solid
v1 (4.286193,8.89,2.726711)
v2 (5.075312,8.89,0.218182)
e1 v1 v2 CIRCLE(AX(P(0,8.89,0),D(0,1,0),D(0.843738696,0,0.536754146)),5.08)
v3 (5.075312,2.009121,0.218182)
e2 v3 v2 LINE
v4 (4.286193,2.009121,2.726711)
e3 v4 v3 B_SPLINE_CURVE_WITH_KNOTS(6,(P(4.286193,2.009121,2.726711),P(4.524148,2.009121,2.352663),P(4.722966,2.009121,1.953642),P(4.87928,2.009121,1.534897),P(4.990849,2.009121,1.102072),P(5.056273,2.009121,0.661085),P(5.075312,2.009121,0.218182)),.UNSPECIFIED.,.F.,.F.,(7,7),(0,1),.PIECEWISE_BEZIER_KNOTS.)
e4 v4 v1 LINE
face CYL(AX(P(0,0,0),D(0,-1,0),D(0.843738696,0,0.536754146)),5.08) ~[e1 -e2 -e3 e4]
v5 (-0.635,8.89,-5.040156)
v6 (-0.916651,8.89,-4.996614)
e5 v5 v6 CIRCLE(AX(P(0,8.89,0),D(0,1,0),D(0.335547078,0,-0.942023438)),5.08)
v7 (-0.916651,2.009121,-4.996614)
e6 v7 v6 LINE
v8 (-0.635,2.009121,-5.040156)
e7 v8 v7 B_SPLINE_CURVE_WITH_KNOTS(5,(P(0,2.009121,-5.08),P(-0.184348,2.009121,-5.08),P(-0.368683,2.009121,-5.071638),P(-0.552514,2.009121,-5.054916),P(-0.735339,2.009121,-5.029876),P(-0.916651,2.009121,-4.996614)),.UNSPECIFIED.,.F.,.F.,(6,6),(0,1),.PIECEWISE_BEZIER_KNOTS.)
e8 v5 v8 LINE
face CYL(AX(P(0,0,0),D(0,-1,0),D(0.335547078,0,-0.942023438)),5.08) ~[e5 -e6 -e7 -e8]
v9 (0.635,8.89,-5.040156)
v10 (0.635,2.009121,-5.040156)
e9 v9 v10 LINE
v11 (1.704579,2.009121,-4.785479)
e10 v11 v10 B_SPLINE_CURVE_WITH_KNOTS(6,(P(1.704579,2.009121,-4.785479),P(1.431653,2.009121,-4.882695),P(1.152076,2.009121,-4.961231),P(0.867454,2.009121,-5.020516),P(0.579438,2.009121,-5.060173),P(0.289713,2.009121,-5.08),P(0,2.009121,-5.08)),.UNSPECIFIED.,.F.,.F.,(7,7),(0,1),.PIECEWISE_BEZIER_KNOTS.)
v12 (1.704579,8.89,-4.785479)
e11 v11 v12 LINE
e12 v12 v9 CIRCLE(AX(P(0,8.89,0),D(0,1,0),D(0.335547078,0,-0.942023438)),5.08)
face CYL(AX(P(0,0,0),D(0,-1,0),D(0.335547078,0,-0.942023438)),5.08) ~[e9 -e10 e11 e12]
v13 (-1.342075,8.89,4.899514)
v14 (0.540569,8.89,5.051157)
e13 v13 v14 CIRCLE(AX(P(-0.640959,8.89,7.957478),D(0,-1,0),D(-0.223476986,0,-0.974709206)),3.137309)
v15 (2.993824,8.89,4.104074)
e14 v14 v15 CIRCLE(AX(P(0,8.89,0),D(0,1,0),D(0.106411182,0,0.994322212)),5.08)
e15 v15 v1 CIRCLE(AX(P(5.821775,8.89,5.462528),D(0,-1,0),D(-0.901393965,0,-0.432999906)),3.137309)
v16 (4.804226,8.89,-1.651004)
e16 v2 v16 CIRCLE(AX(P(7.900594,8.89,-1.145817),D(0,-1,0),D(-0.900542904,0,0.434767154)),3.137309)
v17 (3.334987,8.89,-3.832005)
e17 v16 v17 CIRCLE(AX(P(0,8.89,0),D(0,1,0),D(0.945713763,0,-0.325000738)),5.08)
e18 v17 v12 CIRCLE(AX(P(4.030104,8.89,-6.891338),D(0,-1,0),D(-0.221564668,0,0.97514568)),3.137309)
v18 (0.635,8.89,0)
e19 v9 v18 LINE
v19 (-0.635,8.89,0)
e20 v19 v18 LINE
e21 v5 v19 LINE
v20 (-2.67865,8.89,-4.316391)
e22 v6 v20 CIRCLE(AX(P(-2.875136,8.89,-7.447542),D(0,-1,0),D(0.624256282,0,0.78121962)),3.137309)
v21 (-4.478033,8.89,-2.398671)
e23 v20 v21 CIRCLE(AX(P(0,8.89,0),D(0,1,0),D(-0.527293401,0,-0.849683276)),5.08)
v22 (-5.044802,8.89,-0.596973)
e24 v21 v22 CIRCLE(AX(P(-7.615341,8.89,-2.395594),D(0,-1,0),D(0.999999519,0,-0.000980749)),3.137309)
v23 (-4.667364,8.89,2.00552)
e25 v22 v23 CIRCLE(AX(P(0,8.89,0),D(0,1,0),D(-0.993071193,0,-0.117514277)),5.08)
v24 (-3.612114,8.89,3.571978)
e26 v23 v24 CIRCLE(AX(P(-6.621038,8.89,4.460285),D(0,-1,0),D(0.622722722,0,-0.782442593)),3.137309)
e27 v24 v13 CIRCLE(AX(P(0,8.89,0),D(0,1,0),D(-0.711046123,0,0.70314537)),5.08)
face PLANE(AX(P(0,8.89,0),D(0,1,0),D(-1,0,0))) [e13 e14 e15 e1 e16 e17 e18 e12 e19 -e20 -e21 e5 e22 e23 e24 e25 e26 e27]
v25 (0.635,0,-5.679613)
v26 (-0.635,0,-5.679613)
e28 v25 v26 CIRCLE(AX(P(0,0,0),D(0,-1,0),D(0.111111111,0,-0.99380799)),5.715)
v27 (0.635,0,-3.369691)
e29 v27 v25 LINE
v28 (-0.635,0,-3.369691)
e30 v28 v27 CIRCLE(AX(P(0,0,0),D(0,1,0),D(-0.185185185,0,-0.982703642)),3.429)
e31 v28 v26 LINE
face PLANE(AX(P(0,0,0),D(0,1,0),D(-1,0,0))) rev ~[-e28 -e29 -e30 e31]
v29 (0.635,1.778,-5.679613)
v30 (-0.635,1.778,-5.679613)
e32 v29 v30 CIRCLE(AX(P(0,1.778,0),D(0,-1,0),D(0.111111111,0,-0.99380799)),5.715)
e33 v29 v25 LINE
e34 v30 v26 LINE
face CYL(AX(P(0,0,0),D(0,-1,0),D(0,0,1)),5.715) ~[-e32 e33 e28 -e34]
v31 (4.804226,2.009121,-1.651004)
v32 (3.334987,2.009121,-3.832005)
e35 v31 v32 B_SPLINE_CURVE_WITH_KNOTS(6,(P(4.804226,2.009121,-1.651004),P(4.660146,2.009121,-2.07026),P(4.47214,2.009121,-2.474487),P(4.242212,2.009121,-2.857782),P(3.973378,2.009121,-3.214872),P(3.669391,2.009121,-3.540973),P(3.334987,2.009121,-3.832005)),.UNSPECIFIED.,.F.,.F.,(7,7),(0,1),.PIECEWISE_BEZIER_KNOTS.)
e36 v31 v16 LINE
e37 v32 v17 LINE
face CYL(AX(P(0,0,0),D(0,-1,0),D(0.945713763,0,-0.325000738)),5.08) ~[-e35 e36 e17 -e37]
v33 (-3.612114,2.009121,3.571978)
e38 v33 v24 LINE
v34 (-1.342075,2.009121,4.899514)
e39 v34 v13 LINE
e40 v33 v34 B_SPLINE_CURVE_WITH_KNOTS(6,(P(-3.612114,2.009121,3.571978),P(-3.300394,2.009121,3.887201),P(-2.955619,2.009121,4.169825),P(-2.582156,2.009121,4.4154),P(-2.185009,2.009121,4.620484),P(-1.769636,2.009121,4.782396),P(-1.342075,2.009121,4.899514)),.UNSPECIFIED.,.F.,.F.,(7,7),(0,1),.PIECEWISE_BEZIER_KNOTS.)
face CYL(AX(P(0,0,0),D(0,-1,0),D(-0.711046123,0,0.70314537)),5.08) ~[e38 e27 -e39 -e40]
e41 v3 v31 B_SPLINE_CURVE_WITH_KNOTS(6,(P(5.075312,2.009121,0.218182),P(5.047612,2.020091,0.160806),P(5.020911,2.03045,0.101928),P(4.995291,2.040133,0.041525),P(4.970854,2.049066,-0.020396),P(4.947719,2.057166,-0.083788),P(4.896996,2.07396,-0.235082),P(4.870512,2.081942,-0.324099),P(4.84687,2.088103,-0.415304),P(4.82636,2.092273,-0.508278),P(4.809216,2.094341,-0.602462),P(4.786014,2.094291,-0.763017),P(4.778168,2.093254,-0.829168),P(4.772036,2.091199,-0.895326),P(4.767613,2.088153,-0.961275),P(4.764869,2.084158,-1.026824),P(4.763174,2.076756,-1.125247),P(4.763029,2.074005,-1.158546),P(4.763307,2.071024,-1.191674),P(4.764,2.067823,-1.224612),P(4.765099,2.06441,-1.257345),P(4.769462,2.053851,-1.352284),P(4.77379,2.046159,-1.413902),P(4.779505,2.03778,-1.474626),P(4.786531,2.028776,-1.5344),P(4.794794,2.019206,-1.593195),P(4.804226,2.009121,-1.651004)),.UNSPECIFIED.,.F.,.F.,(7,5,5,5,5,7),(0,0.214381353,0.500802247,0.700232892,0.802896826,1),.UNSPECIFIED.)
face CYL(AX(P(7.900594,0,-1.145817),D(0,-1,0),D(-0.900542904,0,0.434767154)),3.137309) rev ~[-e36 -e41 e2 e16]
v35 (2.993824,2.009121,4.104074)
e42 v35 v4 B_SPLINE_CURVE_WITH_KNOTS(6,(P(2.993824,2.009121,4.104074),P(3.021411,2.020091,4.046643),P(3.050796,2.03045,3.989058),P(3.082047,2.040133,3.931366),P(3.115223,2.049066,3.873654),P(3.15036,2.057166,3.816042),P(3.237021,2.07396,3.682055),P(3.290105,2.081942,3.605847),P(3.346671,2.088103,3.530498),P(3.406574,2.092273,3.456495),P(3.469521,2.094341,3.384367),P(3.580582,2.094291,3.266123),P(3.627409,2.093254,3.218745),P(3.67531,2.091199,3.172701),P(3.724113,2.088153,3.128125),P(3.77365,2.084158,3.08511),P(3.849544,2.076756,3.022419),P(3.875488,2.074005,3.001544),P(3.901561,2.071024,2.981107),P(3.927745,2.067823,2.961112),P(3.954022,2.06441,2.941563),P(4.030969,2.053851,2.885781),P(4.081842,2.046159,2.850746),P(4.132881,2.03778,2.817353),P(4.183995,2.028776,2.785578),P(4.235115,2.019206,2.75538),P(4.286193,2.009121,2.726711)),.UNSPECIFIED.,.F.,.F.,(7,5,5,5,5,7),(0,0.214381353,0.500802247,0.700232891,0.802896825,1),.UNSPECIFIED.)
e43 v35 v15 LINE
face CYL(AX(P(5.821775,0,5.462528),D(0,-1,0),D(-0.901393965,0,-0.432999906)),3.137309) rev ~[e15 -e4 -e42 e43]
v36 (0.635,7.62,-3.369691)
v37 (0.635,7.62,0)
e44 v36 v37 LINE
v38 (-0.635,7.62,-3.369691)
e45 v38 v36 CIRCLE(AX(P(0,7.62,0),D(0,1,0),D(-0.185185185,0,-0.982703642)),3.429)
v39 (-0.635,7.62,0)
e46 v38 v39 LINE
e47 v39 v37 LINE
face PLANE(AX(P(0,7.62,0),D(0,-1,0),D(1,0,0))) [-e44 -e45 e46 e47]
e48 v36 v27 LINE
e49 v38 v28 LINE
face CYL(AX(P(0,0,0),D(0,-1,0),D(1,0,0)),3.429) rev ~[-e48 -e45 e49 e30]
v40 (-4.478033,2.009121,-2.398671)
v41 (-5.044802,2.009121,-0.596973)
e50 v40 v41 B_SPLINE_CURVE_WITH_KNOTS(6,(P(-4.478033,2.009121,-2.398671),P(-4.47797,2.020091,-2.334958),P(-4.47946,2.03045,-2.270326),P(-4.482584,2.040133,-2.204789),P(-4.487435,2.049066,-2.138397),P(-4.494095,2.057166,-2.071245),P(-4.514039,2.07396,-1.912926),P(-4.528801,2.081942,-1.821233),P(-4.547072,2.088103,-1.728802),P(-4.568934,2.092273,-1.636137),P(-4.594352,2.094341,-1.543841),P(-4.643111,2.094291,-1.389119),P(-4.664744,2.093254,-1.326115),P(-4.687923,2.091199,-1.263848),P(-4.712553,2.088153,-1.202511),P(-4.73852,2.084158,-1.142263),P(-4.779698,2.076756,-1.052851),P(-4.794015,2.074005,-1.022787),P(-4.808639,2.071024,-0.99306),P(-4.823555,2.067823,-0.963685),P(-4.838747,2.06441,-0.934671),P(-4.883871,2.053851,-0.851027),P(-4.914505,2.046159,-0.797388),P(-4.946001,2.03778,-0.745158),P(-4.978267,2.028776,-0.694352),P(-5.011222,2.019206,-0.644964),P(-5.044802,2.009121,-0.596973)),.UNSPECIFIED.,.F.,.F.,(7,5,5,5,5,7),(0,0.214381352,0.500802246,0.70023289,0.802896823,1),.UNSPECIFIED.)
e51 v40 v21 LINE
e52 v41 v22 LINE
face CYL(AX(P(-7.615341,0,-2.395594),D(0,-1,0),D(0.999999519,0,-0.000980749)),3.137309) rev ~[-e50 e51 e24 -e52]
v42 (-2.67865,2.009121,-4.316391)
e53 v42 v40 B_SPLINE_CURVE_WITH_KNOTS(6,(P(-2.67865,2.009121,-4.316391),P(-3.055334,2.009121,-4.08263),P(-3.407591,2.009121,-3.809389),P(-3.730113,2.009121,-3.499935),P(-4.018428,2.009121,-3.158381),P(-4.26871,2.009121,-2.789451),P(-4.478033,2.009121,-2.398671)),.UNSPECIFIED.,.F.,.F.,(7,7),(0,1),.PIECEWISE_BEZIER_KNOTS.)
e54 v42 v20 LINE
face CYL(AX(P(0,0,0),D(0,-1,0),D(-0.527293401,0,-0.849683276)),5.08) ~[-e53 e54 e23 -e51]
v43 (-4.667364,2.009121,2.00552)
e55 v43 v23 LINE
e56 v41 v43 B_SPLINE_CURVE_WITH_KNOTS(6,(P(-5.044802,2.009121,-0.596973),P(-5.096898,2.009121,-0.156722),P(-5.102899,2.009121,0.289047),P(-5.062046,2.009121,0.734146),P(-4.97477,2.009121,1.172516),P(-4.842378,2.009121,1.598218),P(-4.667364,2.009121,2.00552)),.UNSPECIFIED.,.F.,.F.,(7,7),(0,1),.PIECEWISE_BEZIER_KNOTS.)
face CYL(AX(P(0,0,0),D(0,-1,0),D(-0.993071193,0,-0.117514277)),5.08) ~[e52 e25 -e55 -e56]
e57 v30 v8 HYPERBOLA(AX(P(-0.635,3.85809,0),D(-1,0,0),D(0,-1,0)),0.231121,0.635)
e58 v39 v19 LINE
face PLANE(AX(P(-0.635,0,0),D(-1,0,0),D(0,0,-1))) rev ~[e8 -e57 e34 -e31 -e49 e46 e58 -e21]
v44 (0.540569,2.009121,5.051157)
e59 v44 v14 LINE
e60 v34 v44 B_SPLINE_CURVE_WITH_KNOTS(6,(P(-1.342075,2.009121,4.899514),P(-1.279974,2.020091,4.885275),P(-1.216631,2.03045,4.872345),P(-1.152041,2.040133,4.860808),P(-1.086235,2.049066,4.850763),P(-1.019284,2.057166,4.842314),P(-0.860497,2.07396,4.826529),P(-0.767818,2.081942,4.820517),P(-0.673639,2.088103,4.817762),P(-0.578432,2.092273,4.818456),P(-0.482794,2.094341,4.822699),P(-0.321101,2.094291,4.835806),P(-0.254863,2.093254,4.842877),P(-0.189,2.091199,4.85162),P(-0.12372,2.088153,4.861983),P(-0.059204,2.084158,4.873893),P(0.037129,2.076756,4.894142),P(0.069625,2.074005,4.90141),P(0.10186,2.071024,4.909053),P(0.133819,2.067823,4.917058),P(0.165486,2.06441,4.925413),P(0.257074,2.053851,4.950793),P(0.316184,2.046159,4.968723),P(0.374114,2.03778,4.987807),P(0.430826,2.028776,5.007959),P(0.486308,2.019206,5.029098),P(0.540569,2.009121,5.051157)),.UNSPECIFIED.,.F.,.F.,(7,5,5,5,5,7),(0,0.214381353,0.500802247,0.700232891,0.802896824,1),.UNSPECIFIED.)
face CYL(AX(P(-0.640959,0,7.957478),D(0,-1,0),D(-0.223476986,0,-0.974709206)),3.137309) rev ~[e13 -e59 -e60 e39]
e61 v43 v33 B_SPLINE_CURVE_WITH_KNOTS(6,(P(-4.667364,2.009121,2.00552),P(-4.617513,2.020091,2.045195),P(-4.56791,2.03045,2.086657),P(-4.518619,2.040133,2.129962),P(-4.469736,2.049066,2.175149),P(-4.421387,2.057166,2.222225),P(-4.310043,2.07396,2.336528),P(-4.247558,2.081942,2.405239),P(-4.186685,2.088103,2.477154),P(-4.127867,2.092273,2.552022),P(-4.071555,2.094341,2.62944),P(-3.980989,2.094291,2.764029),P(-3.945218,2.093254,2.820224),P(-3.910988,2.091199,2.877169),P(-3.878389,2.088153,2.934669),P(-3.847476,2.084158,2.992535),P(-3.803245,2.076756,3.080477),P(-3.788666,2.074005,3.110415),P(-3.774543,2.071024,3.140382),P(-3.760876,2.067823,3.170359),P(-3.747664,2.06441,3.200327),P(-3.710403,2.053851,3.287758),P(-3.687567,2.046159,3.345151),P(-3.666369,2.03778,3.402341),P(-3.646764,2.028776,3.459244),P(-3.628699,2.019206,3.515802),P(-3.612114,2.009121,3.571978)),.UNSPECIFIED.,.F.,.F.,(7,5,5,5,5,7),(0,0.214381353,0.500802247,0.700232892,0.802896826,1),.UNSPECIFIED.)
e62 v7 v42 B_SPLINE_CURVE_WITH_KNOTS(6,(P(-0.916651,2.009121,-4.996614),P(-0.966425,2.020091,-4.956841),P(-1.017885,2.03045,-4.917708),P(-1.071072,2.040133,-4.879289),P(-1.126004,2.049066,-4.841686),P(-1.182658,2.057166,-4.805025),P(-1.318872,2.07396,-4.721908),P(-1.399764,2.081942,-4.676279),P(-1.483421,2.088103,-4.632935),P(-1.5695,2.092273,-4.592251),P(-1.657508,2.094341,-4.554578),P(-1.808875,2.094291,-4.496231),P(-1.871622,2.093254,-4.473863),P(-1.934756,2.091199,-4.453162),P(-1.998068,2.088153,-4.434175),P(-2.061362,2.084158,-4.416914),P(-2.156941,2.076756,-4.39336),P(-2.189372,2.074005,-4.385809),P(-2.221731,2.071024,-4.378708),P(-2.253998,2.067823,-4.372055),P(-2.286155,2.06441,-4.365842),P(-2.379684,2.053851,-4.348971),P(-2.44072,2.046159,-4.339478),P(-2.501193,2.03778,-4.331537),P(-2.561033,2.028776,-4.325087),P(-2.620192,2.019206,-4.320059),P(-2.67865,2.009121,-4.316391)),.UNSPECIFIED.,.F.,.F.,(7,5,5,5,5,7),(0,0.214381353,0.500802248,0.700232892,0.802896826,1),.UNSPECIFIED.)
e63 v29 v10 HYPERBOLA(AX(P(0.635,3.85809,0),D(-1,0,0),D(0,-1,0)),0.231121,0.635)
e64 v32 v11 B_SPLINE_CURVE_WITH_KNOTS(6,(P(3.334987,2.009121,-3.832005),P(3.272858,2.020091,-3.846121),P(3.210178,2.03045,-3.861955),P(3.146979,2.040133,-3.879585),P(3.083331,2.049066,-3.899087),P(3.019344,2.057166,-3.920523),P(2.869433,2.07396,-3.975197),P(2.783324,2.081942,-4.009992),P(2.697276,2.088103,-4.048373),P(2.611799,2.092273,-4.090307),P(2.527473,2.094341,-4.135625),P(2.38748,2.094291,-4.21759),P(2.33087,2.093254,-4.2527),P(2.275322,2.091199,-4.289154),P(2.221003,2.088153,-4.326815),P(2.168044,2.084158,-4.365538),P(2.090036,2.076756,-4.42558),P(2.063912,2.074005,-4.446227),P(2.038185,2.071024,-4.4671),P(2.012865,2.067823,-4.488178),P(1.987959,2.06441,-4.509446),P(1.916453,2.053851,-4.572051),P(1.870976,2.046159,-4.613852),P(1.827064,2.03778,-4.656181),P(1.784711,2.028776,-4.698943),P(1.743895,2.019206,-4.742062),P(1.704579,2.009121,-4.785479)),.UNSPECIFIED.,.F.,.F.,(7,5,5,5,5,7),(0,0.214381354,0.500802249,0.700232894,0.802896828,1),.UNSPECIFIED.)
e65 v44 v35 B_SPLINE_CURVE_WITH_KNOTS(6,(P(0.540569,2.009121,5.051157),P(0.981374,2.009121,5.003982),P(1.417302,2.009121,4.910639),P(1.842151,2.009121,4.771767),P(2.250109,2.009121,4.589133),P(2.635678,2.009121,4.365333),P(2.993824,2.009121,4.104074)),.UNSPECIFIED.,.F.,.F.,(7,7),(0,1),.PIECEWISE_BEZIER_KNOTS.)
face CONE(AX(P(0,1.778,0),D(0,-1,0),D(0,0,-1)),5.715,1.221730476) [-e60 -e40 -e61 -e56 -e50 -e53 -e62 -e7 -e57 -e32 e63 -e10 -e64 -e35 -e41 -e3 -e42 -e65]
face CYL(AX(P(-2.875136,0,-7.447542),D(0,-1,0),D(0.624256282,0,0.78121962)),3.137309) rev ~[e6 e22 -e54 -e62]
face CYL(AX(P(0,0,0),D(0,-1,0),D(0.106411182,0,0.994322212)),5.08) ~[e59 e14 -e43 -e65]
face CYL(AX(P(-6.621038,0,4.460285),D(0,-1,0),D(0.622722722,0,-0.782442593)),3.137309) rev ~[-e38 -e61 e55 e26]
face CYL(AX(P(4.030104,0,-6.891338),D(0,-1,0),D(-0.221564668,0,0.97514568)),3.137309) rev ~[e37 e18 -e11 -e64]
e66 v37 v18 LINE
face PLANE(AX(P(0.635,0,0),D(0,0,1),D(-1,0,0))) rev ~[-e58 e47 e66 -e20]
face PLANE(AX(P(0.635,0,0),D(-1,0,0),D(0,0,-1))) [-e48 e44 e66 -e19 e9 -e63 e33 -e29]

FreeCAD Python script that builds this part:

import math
import FreeCAD as App
import Part
import Sketcher

V = App.Vector
Q = App.Units.Quantity

doc = App.newDocument("Part")
body = doc.addObject("PartDesign::Body", "Body")

sketch1 = doc.addObject("Sketcher::SketchObject", "Sketch")
body.addObject(sketch1)
sketch1.AttachmentSupport = (doc.XZ_Plane, [""])
sketch1.MapMode = "FlatFace"
sketch1.addGeometry(Part.Circle(V(0, 0, 0), V(0, 0, 1), 6), False)
sketch1.addConstraint([
    Sketcher.Constraint("Coincident", 0, 3, -1, 1),
    Sketcher.Constraint("Diameter", 0, Q("0.45 in")),
])
pad1 = doc.addObject("PartDesign::Pad", "Pad")
body.addObject(pad1)
pad1.Profile = sketch1
pad1.Length = Q("0.07 in")
pad1.Reversed = True

sketch2 = doc.addObject("Sketcher::SketchObject", "Sketch001")
body.addObject(sketch2)
sketch2.AttachmentSupport = (doc.YZ_Plane, [""])
sketch2.MapMode = "FlatFace"
sketch2.addGeometry([
    Part.LineSegment(V(1.8, 0, 0), V(1.8, -5.7, 0)),
    Part.LineSegment(V(1.8, -5.7, 0), V(3.9, 0, 0)),
    Part.LineSegment(V(3.9, 0, 0), V(1.8, 0, 0)),
], False)
sketch2.addConstraint([
    Sketcher.Constraint("Coincident", 0, 2, 1, 1),
    Sketcher.Constraint("Coincident", 1, 2, 2, 1),
    Sketcher.Constraint("Coincident", 2, 2, 0, 1),
    Sketcher.Constraint("Vertical", 0),
    Sketcher.Constraint("Horizontal", 2),
    Sketcher.Constraint("PointOnObject", 1, 2, -1),
    Sketcher.Constraint("Angle", 1, Q("70 deg")),
    Sketcher.Constraint("DistanceY", 0, 2, 0, 1, Q("0.225 in")),
    Sketcher.Constraint("DistanceX", -1, 1, 0, 2, Q("0.07 in")),
])
revolution = doc.addObject("PartDesign::Revolution", "Revolution")
body.addObject(revolution)
revolution.Profile = sketch2
revolution.ReferenceAxis = (sketch2, ["H_Axis"])
revolution.Angle = 360

sketch3 = doc.addObject("Sketcher::SketchObject", "Sketch002")
body.addObject(sketch3)
sketch3.AttachmentSupport = (doc.XZ_Plane, [""])
sketch3.MapMode = "FlatFace"
sketch3.addGeometry([
    Part.ArcOfCircle(Part.Circle(V(4, -6.9, 0), V(0, 0, 1), 3.1), math.radians(103), math.radians(138)),
    Part.ArcOfCircle(Part.Circle(V(0, 0, 0), V(0, 0, 1), 5.1), math.radians(-49), math.radians(-19)),
    Part.ArcOfCircle(Part.Circle(V(7.9, -1.1, 0), V(0, 0, 1), 3.1), math.radians(154), math.radians(189)),
    Part.ArcOfCircle(Part.Circle(V(0, 0, 0), V(0, 0, 1), 5.1), math.radians(2), math.radians(32)),
    Part.ArcOfCircle(Part.Circle(V(5.8, 5.5, 0), V(0, 0, 1), 3.1), math.radians(-154), math.radians(-119)),
    Part.ArcOfCircle(Part.Circle(V(0, 0, 0), V(0, 0, 1), 5.1), math.radians(54), math.radians(84)),
    Part.ArcOfCircle(Part.Circle(V(-0.6, 8, 0), V(0, 0, 1), 3.1), math.radians(-103), math.radians(-68)),
    Part.ArcOfCircle(Part.Circle(V(0, 0, 0), V(0, 0, 1), 5.1), math.radians(105), math.radians(135)),
    Part.ArcOfCircle(Part.Circle(V(-6.6, 4.5, 0), V(0, 0, 1), 3.1), math.radians(-51), math.radians(-16)),
    Part.ArcOfCircle(Part.Circle(V(0, 0, 0), V(0, 0, 1), 5.1), math.radians(157), math.radians(187)),
    Part.ArcOfCircle(Part.Circle(V(-7.6, -2.4, 0), V(0, 0, 1), 3.1), math.radians(0), math.radians(35)),
    Part.ArcOfCircle(Part.Circle(V(0, 0, 0), V(0, 0, 1), 5.1), math.radians(-152), math.radians(-122)),
    Part.ArcOfCircle(Part.Circle(V(-2.9, -7.4, 0), V(0, 0, 1), 3.1), math.radians(51), math.radians(86)),
    Part.ArcOfCircle(Part.Circle(V(0, 0, 0), V(0, 0, 1), 5.1), math.radians(-100), math.radians(-70)),
], False)
sketch3.addConstraint([
    Sketcher.Constraint("Coincident", 0, 1, 1, 1),
    Sketcher.Constraint("Coincident", 1, 2, 2, 2),
    Sketcher.Constraint("Coincident", 2, 1, 3, 1),
    Sketcher.Constraint("Coincident", 3, 2, 4, 2),
    Sketcher.Constraint("Coincident", 4, 1, 5, 1),
    Sketcher.Constraint("Coincident", 5, 2, 6, 2),
    Sketcher.Constraint("Coincident", 6, 1, 7, 1),
    Sketcher.Constraint("Coincident", 7, 2, 8, 2),
    Sketcher.Constraint("Coincident", 8, 1, 9, 1),
    Sketcher.Constraint("Coincident", 9, 2, 10, 2),
    Sketcher.Constraint("Coincident", 10, 1, 11, 1),
    Sketcher.Constraint("Coincident", 11, 2, 12, 2),
    Sketcher.Constraint("Coincident", 12, 1, 13, 1),
    Sketcher.Constraint("Coincident", 13, 2, 0, 2),
    Sketcher.Constraint("Coincident", 1, 3, -1, 1),
    Sketcher.Constraint("Coincident", 3, 3, -1, 1),
    Sketcher.Constraint("Coincident", 5, 3, -1, 1),
    Sketcher.Constraint("Coincident", 7, 3, -1, 1),
    Sketcher.Constraint("Coincident", 9, 3, -1, 1),
    Sketcher.Constraint("Coincident", 11, 3, -1, 1),
    Sketcher.Constraint("Coincident", 13, 3, -1, 1),
    Sketcher.Constraint("Equal", 0, 2),
    Sketcher.Constraint("Equal", 1, 3),
    Sketcher.Constraint("Equal", 2, 4),
    Sketcher.Constraint("Equal", 3, 5),
    Sketcher.Constraint("Equal", 4, 6),
    Sketcher.Constraint("Equal", 5, 7),
    Sketcher.Constraint("Equal", 6, 8),
    Sketcher.Constraint("Equal", 7, 9),
    Sketcher.Constraint("Equal", 8, 10),
    Sketcher.Constraint("Equal", 9, 11),
    Sketcher.Constraint("Equal", 10, 12),
    Sketcher.Constraint("Equal", 11, 13),
    Sketcher.Constraint("Radius", 1, Q("0.2 in")),
    Sketcher.Constraint("DistanceY", 1, 2, -1, 1, Q("0.0650001 in")),
    Sketcher.Constraint("Radius", 0, Q("3.137309 mm")),
    Sketcher.Constraint("DistanceX", 9, 2, -1, 1, Q("5.044802 mm")),
    Sketcher.Constraint("DistanceY", 0, 1, 1, 2, Q("2.181001 mm")),
    Sketcher.Constraint("DistanceY", 2, 3, 2, 1, Q("1.363999 mm")),
    Sketcher.Constraint("DistanceX", 6, 1, 4, 1, Q("4.335899 mm")),
    Sketcher.Constraint("DistanceY", 10, 1, 9, 2, Q("1.801699 mm")),
    Sketcher.Constraint("DistanceX", 11, 2, 12, 1, Q("1.761999 mm")),
    Sketcher.Constraint("DistanceY", 0, 3, -1, 1, Q("6.891338 mm")),
    Sketcher.Constraint("DistanceY", -1, 1, 4, 3, Q("5.462528 mm")),
    Sketcher.Constraint("DistanceX", 6, 3, -1, 1, Q("0.640959 mm")),
    Sketcher.Constraint("DistanceY", -1, 1, 6, 3, Q("7.957478 mm")),
    Sketcher.Constraint("DistanceX", 8, 3, -1, 1, Q("6.621038 mm")),
    Sketcher.Constraint("DistanceY", 12, 3, -1, 1, Q("7.447542 mm")),
    Sketcher.Constraint("DistanceY", -1, 1, 7, 2, Q("3.571978 mm")),
])
pad2 = doc.addObject("PartDesign::Pad", "Pad001")
body.addObject(pad2)
pad2.Profile = sketch3
pad2.Length = Q("0.35 in")
pad2.Reversed = True

sketch4 = doc.addObject("Sketcher::SketchObject", "Sketch003")
body.addObject(sketch4)
sketch4.AttachmentSupport = (doc.XZ_Plane, [""])
sketch4.MapMode = "FlatFace"
sketch4.addGeometry([
    Part.LineSegment(V(0.6, -14.3, 0), V(0.6, 0, 0)),
    Part.LineSegment(V(0.6, 0, 0), V(-0.6, 0, 0)),
    Part.LineSegment(V(-0.6, 0, 0), V(-0.6, -14.3, 0)),
    Part.LineSegment(V(-0.6, -14.3, 0), V(0.6, -14.3, 0)),
], False)
sketch4.addConstraint([
    Sketcher.Constraint("Coincident", 0, 2, 1, 1),
    Sketcher.Constraint("Coincident", 1, 2, 2, 1),
    Sketcher.Constraint("Coincident", 2, 2, 3, 1),
    Sketcher.Constraint("Coincident", 3, 2, 0, 1),
    Sketcher.Constraint("Vertical", 0),
    Sketcher.Constraint("Horizontal", 1),
    Sketcher.Constraint("Vertical", 2),
    Sketcher.Constraint("Horizontal", 3),
    Sketcher.Constraint("Symmetric", 0, 2, 1, 2, -1, 1),
    Sketcher.Constraint("DistanceX", 1, 2, 1, 1, Q("0.05 in")),
    Sketcher.Constraint("DistanceY", 0, 1, 0, 2, Q("14.319162 mm")),
])
pocket1 = doc.addObject("PartDesign::Pocket", "Pocket")
body.addObject(pocket1)
pocket1.Profile = sketch4
pocket1.Type = "ThroughAll"

sketch5 = doc.addObject("Sketcher::SketchObject", "Sketch004")
body.addObject(sketch5)
sketch5.AttachmentSupport = (doc.XZ_Plane, [""])
sketch5.MapMode = "FlatFace"
sketch5.addGeometry(Part.Circle(V(0, 0, 0), V(0, 0, 1), 3.4), False)
sketch5.addConstraint([
    Sketcher.Constraint("Coincident", 0, 3, -1, 1),
    Sketcher.Constraint("Diameter", 0, Q("0.27 in")),
])
pocket2 = doc.addObject("PartDesign::Pocket", "Pocket001")
body.addObject(pocket2)
pocket2.Profile = sketch5
pocket2.Length = Q("0.3 in")

doc.recompute()
